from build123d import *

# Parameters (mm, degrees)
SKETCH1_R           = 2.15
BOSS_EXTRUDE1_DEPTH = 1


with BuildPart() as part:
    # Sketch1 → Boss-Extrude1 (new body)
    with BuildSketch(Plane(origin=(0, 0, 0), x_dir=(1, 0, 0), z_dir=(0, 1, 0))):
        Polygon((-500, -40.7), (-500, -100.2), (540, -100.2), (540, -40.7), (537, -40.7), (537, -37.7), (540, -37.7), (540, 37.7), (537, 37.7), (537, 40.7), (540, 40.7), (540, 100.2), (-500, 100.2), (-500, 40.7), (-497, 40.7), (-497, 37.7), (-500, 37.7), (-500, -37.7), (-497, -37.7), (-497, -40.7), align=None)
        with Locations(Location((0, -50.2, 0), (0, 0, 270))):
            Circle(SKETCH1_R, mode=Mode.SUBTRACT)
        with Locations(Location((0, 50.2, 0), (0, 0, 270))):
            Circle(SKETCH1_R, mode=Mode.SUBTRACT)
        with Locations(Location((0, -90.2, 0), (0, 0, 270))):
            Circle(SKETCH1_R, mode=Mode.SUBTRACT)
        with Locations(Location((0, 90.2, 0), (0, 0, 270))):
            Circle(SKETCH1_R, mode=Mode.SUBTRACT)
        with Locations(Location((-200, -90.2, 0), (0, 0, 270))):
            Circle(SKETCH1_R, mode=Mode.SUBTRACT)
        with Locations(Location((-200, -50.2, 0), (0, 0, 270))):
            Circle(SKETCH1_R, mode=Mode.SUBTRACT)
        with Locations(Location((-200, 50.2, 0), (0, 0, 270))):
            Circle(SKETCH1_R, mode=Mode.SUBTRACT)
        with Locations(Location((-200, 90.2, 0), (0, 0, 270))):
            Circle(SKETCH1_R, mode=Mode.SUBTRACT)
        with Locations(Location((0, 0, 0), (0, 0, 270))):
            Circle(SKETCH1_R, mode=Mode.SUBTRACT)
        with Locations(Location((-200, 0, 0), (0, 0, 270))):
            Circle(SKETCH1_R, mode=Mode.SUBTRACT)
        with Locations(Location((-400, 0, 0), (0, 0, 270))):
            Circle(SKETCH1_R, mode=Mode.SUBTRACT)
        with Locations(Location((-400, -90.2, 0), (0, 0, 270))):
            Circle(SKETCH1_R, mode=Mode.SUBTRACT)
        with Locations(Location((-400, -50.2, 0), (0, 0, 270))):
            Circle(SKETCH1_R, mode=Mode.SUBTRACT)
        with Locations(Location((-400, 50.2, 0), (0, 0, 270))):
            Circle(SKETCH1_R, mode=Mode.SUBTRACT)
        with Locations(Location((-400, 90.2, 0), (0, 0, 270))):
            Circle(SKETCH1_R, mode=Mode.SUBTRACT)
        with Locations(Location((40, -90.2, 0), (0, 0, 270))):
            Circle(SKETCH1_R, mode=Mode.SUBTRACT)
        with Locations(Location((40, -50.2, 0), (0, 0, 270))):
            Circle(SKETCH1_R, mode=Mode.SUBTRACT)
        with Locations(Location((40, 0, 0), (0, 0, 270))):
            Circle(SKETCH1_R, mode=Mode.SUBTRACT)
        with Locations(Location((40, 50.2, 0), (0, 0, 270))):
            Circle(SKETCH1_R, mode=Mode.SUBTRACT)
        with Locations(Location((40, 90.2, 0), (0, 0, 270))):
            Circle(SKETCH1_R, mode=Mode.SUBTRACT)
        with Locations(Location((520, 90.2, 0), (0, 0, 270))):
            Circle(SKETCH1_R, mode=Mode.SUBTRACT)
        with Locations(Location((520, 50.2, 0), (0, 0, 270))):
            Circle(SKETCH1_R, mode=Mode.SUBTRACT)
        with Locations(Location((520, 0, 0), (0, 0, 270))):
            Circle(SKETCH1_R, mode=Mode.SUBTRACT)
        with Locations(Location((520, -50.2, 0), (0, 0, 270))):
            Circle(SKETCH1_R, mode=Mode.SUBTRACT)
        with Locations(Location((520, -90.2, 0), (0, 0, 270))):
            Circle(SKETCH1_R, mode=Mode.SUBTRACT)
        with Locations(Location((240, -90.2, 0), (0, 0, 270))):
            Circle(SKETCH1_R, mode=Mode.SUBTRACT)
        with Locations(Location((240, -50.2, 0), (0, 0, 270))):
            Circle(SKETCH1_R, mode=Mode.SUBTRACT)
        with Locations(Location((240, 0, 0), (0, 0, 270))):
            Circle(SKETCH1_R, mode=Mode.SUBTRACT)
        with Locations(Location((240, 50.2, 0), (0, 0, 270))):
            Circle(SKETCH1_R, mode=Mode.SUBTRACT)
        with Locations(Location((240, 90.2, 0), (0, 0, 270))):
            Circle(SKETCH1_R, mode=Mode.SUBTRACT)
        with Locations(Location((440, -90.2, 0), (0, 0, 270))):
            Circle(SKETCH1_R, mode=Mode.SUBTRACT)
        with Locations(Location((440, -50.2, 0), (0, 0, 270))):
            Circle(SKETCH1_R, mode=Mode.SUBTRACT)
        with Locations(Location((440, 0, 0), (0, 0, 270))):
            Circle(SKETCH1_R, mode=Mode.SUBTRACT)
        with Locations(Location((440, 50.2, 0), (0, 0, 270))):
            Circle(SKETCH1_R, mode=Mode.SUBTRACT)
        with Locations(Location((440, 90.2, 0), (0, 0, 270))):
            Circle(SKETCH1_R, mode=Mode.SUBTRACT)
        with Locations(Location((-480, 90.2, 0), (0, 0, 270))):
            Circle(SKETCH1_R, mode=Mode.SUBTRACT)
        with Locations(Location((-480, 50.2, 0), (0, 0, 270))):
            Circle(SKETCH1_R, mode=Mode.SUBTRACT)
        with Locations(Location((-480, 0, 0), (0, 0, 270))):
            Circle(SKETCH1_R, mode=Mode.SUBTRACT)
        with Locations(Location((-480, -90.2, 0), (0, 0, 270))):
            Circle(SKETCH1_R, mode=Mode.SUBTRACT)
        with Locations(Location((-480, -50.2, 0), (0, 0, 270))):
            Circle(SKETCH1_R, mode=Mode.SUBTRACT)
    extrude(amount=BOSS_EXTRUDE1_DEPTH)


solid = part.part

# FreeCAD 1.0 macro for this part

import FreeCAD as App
import Part
import Sketcher
from FreeCAD import Vector


def add_polygon(sketch, points):
    """Adds a closed chain of lines whose ends are joined by coincident constraints."""
    first, n = sketch.GeometryCount, len(points)
    for a, b in zip(points, points[1:] + points[:1]):
        sketch.addGeometry(Part.LineSegment(App.Vector(*a, 0), App.Vector(*b, 0)), False)
    for i in range(n):
        sketch.addConstraint(Sketcher.Constraint("Coincident", first + i, 2, first + (i + 1) % n, 1))

doc = App.newDocument("Part")
body = doc.addObject("PartDesign::Body", "Body")

# Sketch on XZ plane
sketch1 = body.newObject("Sketcher::SketchObject", "Sketch")
sketch1.AttachmentSupport = (doc.getObject("XZ_Plane"), [""])
sketch1.MapMode = "FlatFace"
add_polygon(sketch1, [(-500, 40.7), (-500, 100.2), (540, 100.2), (540, 40.7), (537, 40.7), (537, 37.7), (540, 37.7), (540, -37.7), (537, -37.7), (537, -40.7), (540, -40.7), (540, -100.2), (-500, -100.2), (-500, -40.7), (-497, -40.7), (-497, -37.7), (-500, -37.7), (-500, 37.7), (-497, 37.7), (-497, 40.7)])  # lines 0-19
sketch1.addGeometry(Part.Circle(Vector(-480, 90.2, 0), Vector(0, 0, 1), 2.1), False)  # 20
sketch1.addGeometry(Part.Circle(Vector(-400, 90.2, 0), Vector(0, 0, 1), 2.1), False)  # 21
sketch1.addGeometry(Part.Circle(Vector(-480, 50.2, 0), Vector(0, 0, 1), 2.1), False)  # 22
sketch1.addGeometry(Part.Circle(Vector(-400, 50.2, 0), Vector(0, 0, 1), 2.1), False)  # 23
sketch1.addGeometry(Part.Circle(Vector(-200, 90.2, 0), Vector(0, 0, 1), 2.1), False)  # 24
sketch1.addGeometry(Part.Circle(Vector(0, 90.2, 0), Vector(0, 0, 1), 2.1), False)  # 25
sketch1.addGeometry(Part.Circle(Vector(-200, 50.2, 0), Vector(0, 0, 1), 2.1), False)  # 26
sketch1.addGeometry(Part.Circle(Vector(0, 50.2, 0), Vector(0, 0, 1), 2.1), False)  # 27
sketch1.addGeometry(Part.Circle(Vector(40, 90.2, 0), Vector(0, 0, 1), 2.1), False)  # 28
sketch1.addGeometry(Part.Circle(Vector(240, 90.2, 0), Vector(0, 0, 1), 2.1), False)  # 29
sketch1.addGeometry(Part.Circle(Vector(40, 50.2, 0), Vector(0, 0, 1), 2.1), False)  # 30
sketch1.addGeometry(Part.Circle(Vector(240, 50.2, 0), Vector(0, 0, 1), 2.1), False)  # 31
sketch1.addGeometry(Part.Circle(Vector(440, 90.2, 0), Vector(0, 0, 1), 2.1), False)  # 32
sketch1.addGeometry(Part.Circle(Vector(520, 90.2, 0), Vector(0, 0, 1), 2.1), False)  # 33
sketch1.addGeometry(Part.Circle(Vector(440, 50.2, 0), Vector(0, 0, 1), 2.1), False)  # 34
sketch1.addGeometry(Part.Circle(Vector(520, 50.2, 0), Vector(0, 0, 1), 2.1), False)  # 35
sketch1.addGeometry(Part.Circle(Vector(-480, 0, 0), Vector(0, 0, 1), 2.1), False)  # 36
sketch1.addGeometry(Part.Circle(Vector(-400, 0, 0), Vector(0, 0, 1), 2.1), False)  # 37
sketch1.addGeometry(Part.Circle(Vector(-200, 0, 0), Vector(0, 0, 1), 2.1), False)  # 38
sketch1.addGeometry(Part.Circle(Vector(0, 0, 0), Vector(0, 0, 1), 2.1), False)  # 39
sketch1.addGeometry(Part.Circle(Vector(-480, -50.2, 0), Vector(0, 0, 1), 2.1), False)  # 40
sketch1.addGeometry(Part.Circle(Vector(-400, -50.2, 0), Vector(0, 0, 1), 2.1), False)  # 41
sketch1.addGeometry(Part.Circle(Vector(-480, -90.2, 0), Vector(0, 0, 1), 2.1), False)  # 42
sketch1.addGeometry(Part.Circle(Vector(-400, -90.2, 0), Vector(0, 0, 1), 2.1), False)  # 43
sketch1.addGeometry(Part.Circle(Vector(-200, -50.2, 0), Vector(0, 0, 1), 2.1), False)  # 44
sketch1.addGeometry(Part.Circle(Vector(0, -50.2, 0), Vector(0, 0, 1), 2.1), False)  # 45
sketch1.addGeometry(Part.Circle(Vector(-200, -90.2, 0), Vector(0, 0, 1), 2.1), False)  # 46
sketch1.addGeometry(Part.Circle(Vector(0, -90.2, 0), Vector(0, 0, 1), 2.1), False)  # 47
sketch1.addGeometry(Part.Circle(Vector(40, 0, 0), Vector(0, 0, 1), 2.1), False)  # 48
sketch1.addGeometry(Part.Circle(Vector(240, 0, 0), Vector(0, 0, 1), 2.1), False)  # 49
sketch1.addGeometry(Part.Circle(Vector(440, 0, 0), Vector(0, 0, 1), 2.1), False)  # 50
sketch1.addGeometry(Part.Circle(Vector(520, 0, 0), Vector(0, 0, 1), 2.1), False)  # 51
sketch1.addGeometry(Part.Circle(Vector(40, -50.2, 0), Vector(0, 0, 1), 2.1), False)  # 52
sketch1.addGeometry(Part.Circle(Vector(240, -50.2, 0), Vector(0, 0, 1), 2.1), False)  # 53
sketch1.addGeometry(Part.Circle(Vector(40, -90.2, 0), Vector(0, 0, 1), 2.1), False)  # 54
sketch1.addGeometry(Part.Circle(Vector(240, -90.2, 0), Vector(0, 0, 1), 2.1), False)  # 55
sketch1.addGeometry(Part.Circle(Vector(440, -50.2, 0), Vector(0, 0, 1), 2.1), False)  # 56
sketch1.addGeometry(Part.Circle(Vector(520, -50.2, 0), Vector(0, 0, 1), 2.1), False)  # 57
sketch1.addGeometry(Part.Circle(Vector(440, -90.2, 0), Vector(0, 0, 1), 2.1), False)  # 58
sketch1.addGeometry(Part.Circle(Vector(520, -90.2, 0), Vector(0, 0, 1), 2.1), False)  # 59
sketch1.addConstraint(Sketcher.Constraint("Vertical", 0))
sketch1.addConstraint(Sketcher.Constraint("Horizontal", 1))
sketch1.addConstraint(Sketcher.Constraint("Vertical", 2))
sketch1.addConstraint(Sketcher.Constraint("Horizontal", 3))
sketch1.addConstraint(Sketcher.Constraint("Vertical", 4))
sketch1.addConstraint(Sketcher.Constraint("Horizontal", 5))
sketch1.addConstraint(Sketcher.Constraint("Vertical", 6))
sketch1.addConstraint(Sketcher.Constraint("Horizontal", 7))
sketch1.addConstraint(Sketcher.Constraint("Vertical", 8))
sketch1.addConstraint(Sketcher.Constraint("Horizontal", 9))
sketch1.addConstraint(Sketcher.Constraint("Vertical", 10))
sketch1.addConstraint(Sketcher.Constraint("Horizontal", 11))
sketch1.addConstraint(Sketcher.Constraint("Vertical", 12))
sketch1.addConstraint(Sketcher.Constraint("Horizontal", 13))
sketch1.addConstraint(Sketcher.Constraint("Vertical", 14))
sketch1.addConstraint(Sketcher.Constraint("Horizontal", 15))
sketch1.addConstraint(Sketcher.Constraint("Vertical", 16))
sketch1.addConstraint(Sketcher.Constraint("Horizontal", 17))
sketch1.addConstraint(Sketcher.Constraint("Vertical", 18))
sketch1.addConstraint(Sketcher.Constraint("Horizontal", 19))
sketch1.addConstraint(Sketcher.Constraint("Coincident", 39, 3, -1, 1))
sketch1.addConstraint(Sketcher.Constraint("Equal", 20, 21))
sketch1.addConstraint(Sketcher.Constraint("Equal", 21, 22))
sketch1.addConstraint(Sketcher.Constraint("Equal", 22, 23))
sketch1.addConstraint(Sketcher.Constraint("Equal", 23, 24))
sketch1.addConstraint(Sketcher.Constraint("Equal", 24, 25))
sketch1.addConstraint(Sketcher.Constraint("Equal", 25, 26))
sketch1.addConstraint(Sketcher.Constraint("Equal", 26, 27))
sketch1.addConstraint(Sketcher.Constraint("Equal", 27, 28))
sketch1.addConstraint(Sketcher.Constraint("Equal", 28, 29))
sketch1.addConstraint(Sketcher.Constraint("Equal", 29, 30))
sketch1.addConstraint(Sketcher.Constraint("Equal", 30, 31))
sketch1.addConstraint(Sketcher.Constraint("Equal", 31, 32))
sketch1.addConstraint(Sketcher.Constraint("Equal", 32, 33))
sketch1.addConstraint(Sketcher.Constraint("Equal", 33, 34))
sketch1.addConstraint(Sketcher.Constraint("Equal", 34, 35))
sketch1.addConstraint(Sketcher.Constraint("Equal", 35, 36))
sketch1.addConstraint(Sketcher.Constraint("Equal", 36, 37))
sketch1.addConstraint(Sketcher.Constraint("Equal", 37, 38))
sketch1.addConstraint(Sketcher.Constraint("Equal", 38, 39))
sketch1.addConstraint(Sketcher.Constraint("Equal", 39, 40))
sketch1.addConstraint(Sketcher.Constraint("Equal", 40, 41))
sketch1.addConstraint(Sketcher.Constraint("Equal", 41, 42))
sketch1.addConstraint(Sketcher.Constraint("Equal", 42, 43))
sketch1.addConstraint(Sketcher.Constraint("Equal", 43, 44))
sketch1.addConstraint(Sketcher.Constraint("Equal", 44, 45))
sketch1.addConstraint(Sketcher.Constraint("Equal", 45, 46))
sketch1.addConstraint(Sketcher.Constraint("Equal", 46, 47))
sketch1.addConstraint(Sketcher.Constraint("Equal", 47, 48))
sketch1.addConstraint(Sketcher.Constraint("Equal", 48, 49))
sketch1.addConstraint(Sketcher.Constraint("Equal", 49, 50))
sketch1.addConstraint(Sketcher.Constraint("Equal", 50, 51))
sketch1.addConstraint(Sketcher.Constraint("Equal", 51, 52))
sketch1.addConstraint(Sketcher.Constraint("Equal", 52, 53))
sketch1.addConstraint(Sketcher.Constraint("Equal", 53, 54))
sketch1.addConstraint(Sketcher.Constraint("Equal", 54, 55))
sketch1.addConstraint(Sketcher.Constraint("Equal", 55, 56))
sketch1.addConstraint(Sketcher.Constraint("Equal", 56, 57))
sketch1.addConstraint(Sketcher.Constraint("Equal", 57, 58))
sketch1.addConstraint(Sketcher.Constraint("Equal", 58, 59))
sketch1.addConstraint(Sketcher.Constraint("Symmetric", 27, 3, 45, 3, -1, 1))
sketch1.addConstraint(Sketcher.Constraint("Symmetric", 25, 3, 47, 3, -1, 1))
sketch1.addConstraint(Sketcher.Constraint("Symmetric", 22, 3, 40, 3, -1))
sketch1.addConstraint(Sketcher.Constraint("Symmetric", 23, 3, 41, 3, -1))
sketch1.addConstraint(Sketcher.Constraint("Symmetric", 20, 3, 42, 3, -1))
sketch1.addConstraint(Sketcher.Constraint("Symmetric", 21, 3, 43, 3, -1))
sketch1.addConstraint(Sketcher.Constraint("Symmetric", 26, 3, 44, 3, -1))
sketch1.addConstraint(Sketcher.Constraint("Symmetric", 24, 3, 46, 3, -1))
sketch1.addConstraint(Sketcher.Constraint("Symmetric", 30, 3, 52, 3, -1))
sketch1.addConstraint(Sketcher.Constraint("Symmetric", 31, 3, 53, 3, -1))
sketch1.addConstraint(Sketcher.Constraint("Symmetric", 28, 3, 54, 3, -1))
sketch1.addConstraint(Sketcher.Constraint("Symmetric", 29, 3, 55, 3, -1))
sketch1.addConstraint(Sketcher.Constraint("Symmetric", 34, 3, 56, 3, -1))
sketch1.addConstraint(Sketcher.Constraint("Symmetric", 35, 3, 57, 3, -1))
sketch1.addConstraint(Sketcher.Constraint("Symmetric", 32, 3, 58, 3, -1))
sketch1.addConstraint(Sketcher.Constraint("Symmetric", 33, 3, 59, 3, -1))
sketch1.addConstraint(Sketcher.Constraint("Symmetric", 4, 2, 7, 2, -1))
sketch1.addConstraint(Sketcher.Constraint("Symmetric", 2, 2, 9, 2, -1))
sketch1.addConstraint(Sketcher.Constraint("Symmetric", 0, 2, 11, 2, -1))
sketch1.addConstraint(Sketcher.Constraint("Symmetric", 14, 2, 17, 2, -1))
sketch1.addConstraint(Sketcher.Constraint("PointOnObject", 25, 3, -2))
sketch1.addConstraint(Sketcher.Constraint("PointOnObject", 27, 3, -2))
sketch1.addConstraint(Sketcher.Constraint("PointOnObject", 36, 3, -1))
sketch1.addConstraint(Sketcher.Constraint("PointOnObject", 37, 3, -1))
sketch1.addConstraint(Sketcher.Constraint("PointOnObject", 38, 3, -1))
sketch1.addConstraint(Sketcher.Constraint("PointOnObject", 48, 3, -1))
sketch1.addConstraint(Sketcher.Constraint("PointOnObject", 49, 3, -1))
sketch1.addConstraint(Sketcher.Constraint("PointOnObject", 50, 3, -1))
sketch1.addConstraint(Sketcher.Constraint("PointOnObject", 51, 3, -1))
sketch1.addConstraint(Sketcher.Constraint("Horizontal", 20, 3, 21, 3))
sketch1.addConstraint(Sketcher.Constraint("Horizontal", 22, 3, 23, 3))
sketch1.addConstraint(Sketcher.Constraint("Horizontal", 21, 3, 24, 3))
sketch1.addConstraint(Sketcher.Constraint("Horizontal", 24, 3, 25, 3))
sketch1.addConstraint(Sketcher.Constraint("Horizontal", 23, 3, 26, 3))
sketch1.addConstraint(Sketcher.Constraint("Horizontal", 26, 3, 27, 3))
sketch1.addConstraint(Sketcher.Constraint("Horizontal", 25, 3, 28, 3))
sketch1.addConstraint(Sketcher.Constraint("Horizontal", 28, 3, 29, 3))
sketch1.addConstraint(Sketcher.Constraint("Horizontal", 27, 3, 30, 3))
sketch1.addConstraint(Sketcher.Constraint("Horizontal", 30, 3, 31, 3))
sketch1.addConstraint(Sketcher.Constraint("Horizontal", 29, 3, 32, 3))
sketch1.addConstraint(Sketcher.Constraint("Horizontal", 32, 3, 33, 3))
sketch1.addConstraint(Sketcher.Constraint("Horizontal", 31, 3, 34, 3))
sketch1.addConstraint(Sketcher.Constraint("Horizontal", 34, 3, 35, 3))
sketch1.addConstraint(Sketcher.Constraint("Horizontal", 9, 2, 12, 2))
sketch1.addConstraint(Sketcher.Constraint("Horizontal", 7, 2, 14, 2))
sketch1.addConstraint(Sketcher.Constraint("Horizontal", 3, 2, 18, 2))
sketch1.addConstraint(Sketcher.Constraint("Vertical", 20, 3, 22, 3))
sketch1.addConstraint(Sketcher.Constraint("Vertical", 21, 3, 23, 3))
sketch1.addConstraint(Sketcher.Constraint("Vertical", 24, 3, 26, 3))
sketch1.addConstraint(Sketcher.Constraint("Vertical", 28, 3, 30, 3))
sketch1.addConstraint(Sketcher.Constraint("Vertical", 29, 3, 31, 3))
sketch1.addConstraint(Sketcher.Constraint("Vertical", 32, 3, 34, 3))
sketch1.addConstraint(Sketcher.Constraint("Vertical", 33, 3, 35, 3))
sketch1.addConstraint(Sketcher.Constraint("Vertical", 22, 3, 36, 3))
sketch1.addConstraint(Sketcher.Constraint("Vertical", 23, 3, 37, 3))
sketch1.addConstraint(Sketcher.Constraint("Vertical", 26, 3, 38, 3))
sketch1.addConstraint(Sketcher.Constraint("Vertical", 30, 3, 48, 3))
sketch1.addConstraint(Sketcher.Constraint("Vertical", 31, 3, 49, 3))
sketch1.addConstraint(Sketcher.Constraint("Vertical", 34, 3, 50, 3))
sketch1.addConstraint(Sketcher.Constraint("Vertical", 35, 3, 51, 3))
sketch1.addConstraint(Sketcher.Constraint("Vertical", 2, 2, 5, 2))
sketch1.addConstraint(Sketcher.Constraint("Vertical", 12, 2, 15, 2))
sketch1.addConstraint(Sketcher.Constraint("Equal", 9, 13))
sketch1.addConstraint(Sketcher.Constraint("Equal", 19, 4))
sketch1.addConstraint(Sketcher.Constraint("Diameter", 20, 4.3))
sketch1.addConstraint(Sketcher.Constraint("DistanceX", 1, 1, 1, 2, 1040.0))
sketch1.addConstraint(Sketcher.Constraint("DistanceX", 3, 2, 3, 1, 3.0))
sketch1.addConstraint(Sketcher.Constraint("DistanceY", 0, 1, 0, 2, 59.5))
sketch1.addConstraint(Sketcher.Constraint("DistanceY", 6, 2, 6, 1, 75.4))
sketch1.addConstraint(Sketcher.Constraint("DistanceX", 20, 3, -1, 1, 480.0))
sketch1.addConstraint(Sketcher.Constraint("DistanceX", 21, 3, -1, 1, 400.0))
sketch1.addConstraint(Sketcher.Constraint("DistanceX", 24, 3, -1, 1, 200.0))
sketch1.addConstraint(Sketcher.Constraint("DistanceX", -1, 1, 28, 3, 40.0))
sketch1.addConstraint(Sketcher.Constraint("DistanceX", -1, 1, 29, 3, 240.0))
sketch1.addConstraint(Sketcher.Constraint("DistanceX", -1, 1, 32, 3, 440.0))
sketch1.addConstraint(Sketcher.Constraint("DistanceX", -1, 1, 33, 3, 520.0))
sketch1.addConstraint(Sketcher.Constraint("DistanceX", 0, 2, -1, 1, 500.0))
sketch1.addConstraint(Sketcher.Constraint("DistanceY", 22, 3, 20, 3, 40.0))
sketch1.addConstraint(Sketcher.Constraint("DistanceY", 20, 3, 0, 2, 10.0))
pad1 = body.newObject("PartDesign::Pad", "Pad")
pad1.Profile = sketch1
pad1.Length = 1
pad1.Reversed = True

doc.recompute()
